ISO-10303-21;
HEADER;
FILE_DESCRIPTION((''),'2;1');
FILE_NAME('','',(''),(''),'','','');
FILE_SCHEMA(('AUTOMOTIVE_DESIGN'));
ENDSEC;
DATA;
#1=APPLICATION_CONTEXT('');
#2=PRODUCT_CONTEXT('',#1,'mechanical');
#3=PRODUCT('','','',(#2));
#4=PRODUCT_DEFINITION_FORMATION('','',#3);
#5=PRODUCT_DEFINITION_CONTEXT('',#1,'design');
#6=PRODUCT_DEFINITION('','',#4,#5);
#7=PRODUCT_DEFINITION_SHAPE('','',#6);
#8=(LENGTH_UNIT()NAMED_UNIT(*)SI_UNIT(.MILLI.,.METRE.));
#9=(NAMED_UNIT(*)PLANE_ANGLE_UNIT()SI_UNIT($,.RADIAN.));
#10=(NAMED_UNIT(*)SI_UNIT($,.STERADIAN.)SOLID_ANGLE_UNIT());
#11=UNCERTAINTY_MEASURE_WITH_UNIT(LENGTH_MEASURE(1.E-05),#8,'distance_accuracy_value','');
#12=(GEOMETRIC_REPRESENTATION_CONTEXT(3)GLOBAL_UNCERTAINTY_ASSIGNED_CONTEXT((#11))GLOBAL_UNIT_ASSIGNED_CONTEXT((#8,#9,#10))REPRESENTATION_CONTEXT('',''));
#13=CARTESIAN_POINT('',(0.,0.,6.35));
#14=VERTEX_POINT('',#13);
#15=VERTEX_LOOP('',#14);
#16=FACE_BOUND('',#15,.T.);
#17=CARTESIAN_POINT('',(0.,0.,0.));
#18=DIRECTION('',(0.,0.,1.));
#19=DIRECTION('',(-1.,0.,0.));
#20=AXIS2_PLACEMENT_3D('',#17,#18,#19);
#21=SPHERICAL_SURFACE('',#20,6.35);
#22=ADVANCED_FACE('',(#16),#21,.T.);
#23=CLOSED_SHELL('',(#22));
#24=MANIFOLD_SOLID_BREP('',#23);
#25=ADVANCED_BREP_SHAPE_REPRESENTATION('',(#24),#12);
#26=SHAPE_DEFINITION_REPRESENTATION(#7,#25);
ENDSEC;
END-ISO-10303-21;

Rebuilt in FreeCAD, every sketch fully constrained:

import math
import FreeCAD as App
import Part
import Sketcher
Q = App.Units.Quantity

doc = App.newDocument("Part")
params = doc.addObject("Spreadsheet::Sheet", "Params")
for row, (alias, value) in enumerate([
    ("sketch1_radius", "0.25 in"),
    ("revolution_angle", "360 deg"),
], start=1):
    params.set(f"A{row}", alias)
    params.set(f"B{row}", "=" + value)
    params.setAlias(f"B{row}", alias)

body = doc.addObject("PartDesign::Body", "Body")

sketch1 = body.newObject("Sketcher::SketchObject", "Sketch")
sketch1.AttachmentSupport = (doc.getObject("XZ_Plane"), [""])
sketch1.MapMode = "FlatFace"
sketch1.addGeometry(Part.LineSegment(App.Vector(0, 6, 0), App.Vector(0, -6, 0)), False)
sketch1.addGeometry(Part.ArcOfCircle(Part.Circle(App.Vector(0, 0, 0), App.Vector(0, 0, 1), 6), math.radians(90), math.radians(270)), False)
sketch1.addConstraint(Sketcher.Constraint("Coincident", 0, 1, 1, 1))
sketch1.addConstraint(Sketcher.Constraint("Coincident", 1, 2, 0, 2))
sketch1.addConstraint(Sketcher.Constraint("Vertical", 0))
sketch1.addConstraint(Sketcher.Constraint("Coincident", 1, 3, -1, 1))
sketch1.addConstraint(Sketcher.Constraint("PointOnObject", 0, 1, -2))
sketch1.addConstraint(Sketcher.Constraint("Radius", 1, Q("0.25 in")))
sketch1.setExpression("Constraints[5]", "Params.sketch1_radius")
revolution = body.newObject("PartDesign::Revolution", "Revolution")
revolution.Profile = sketch1
revolution.ReferenceAxis = (sketch1, ["V_Axis"])
revolution.setExpression("Angle", "Params.revolution_angle")

doc.recompute()
